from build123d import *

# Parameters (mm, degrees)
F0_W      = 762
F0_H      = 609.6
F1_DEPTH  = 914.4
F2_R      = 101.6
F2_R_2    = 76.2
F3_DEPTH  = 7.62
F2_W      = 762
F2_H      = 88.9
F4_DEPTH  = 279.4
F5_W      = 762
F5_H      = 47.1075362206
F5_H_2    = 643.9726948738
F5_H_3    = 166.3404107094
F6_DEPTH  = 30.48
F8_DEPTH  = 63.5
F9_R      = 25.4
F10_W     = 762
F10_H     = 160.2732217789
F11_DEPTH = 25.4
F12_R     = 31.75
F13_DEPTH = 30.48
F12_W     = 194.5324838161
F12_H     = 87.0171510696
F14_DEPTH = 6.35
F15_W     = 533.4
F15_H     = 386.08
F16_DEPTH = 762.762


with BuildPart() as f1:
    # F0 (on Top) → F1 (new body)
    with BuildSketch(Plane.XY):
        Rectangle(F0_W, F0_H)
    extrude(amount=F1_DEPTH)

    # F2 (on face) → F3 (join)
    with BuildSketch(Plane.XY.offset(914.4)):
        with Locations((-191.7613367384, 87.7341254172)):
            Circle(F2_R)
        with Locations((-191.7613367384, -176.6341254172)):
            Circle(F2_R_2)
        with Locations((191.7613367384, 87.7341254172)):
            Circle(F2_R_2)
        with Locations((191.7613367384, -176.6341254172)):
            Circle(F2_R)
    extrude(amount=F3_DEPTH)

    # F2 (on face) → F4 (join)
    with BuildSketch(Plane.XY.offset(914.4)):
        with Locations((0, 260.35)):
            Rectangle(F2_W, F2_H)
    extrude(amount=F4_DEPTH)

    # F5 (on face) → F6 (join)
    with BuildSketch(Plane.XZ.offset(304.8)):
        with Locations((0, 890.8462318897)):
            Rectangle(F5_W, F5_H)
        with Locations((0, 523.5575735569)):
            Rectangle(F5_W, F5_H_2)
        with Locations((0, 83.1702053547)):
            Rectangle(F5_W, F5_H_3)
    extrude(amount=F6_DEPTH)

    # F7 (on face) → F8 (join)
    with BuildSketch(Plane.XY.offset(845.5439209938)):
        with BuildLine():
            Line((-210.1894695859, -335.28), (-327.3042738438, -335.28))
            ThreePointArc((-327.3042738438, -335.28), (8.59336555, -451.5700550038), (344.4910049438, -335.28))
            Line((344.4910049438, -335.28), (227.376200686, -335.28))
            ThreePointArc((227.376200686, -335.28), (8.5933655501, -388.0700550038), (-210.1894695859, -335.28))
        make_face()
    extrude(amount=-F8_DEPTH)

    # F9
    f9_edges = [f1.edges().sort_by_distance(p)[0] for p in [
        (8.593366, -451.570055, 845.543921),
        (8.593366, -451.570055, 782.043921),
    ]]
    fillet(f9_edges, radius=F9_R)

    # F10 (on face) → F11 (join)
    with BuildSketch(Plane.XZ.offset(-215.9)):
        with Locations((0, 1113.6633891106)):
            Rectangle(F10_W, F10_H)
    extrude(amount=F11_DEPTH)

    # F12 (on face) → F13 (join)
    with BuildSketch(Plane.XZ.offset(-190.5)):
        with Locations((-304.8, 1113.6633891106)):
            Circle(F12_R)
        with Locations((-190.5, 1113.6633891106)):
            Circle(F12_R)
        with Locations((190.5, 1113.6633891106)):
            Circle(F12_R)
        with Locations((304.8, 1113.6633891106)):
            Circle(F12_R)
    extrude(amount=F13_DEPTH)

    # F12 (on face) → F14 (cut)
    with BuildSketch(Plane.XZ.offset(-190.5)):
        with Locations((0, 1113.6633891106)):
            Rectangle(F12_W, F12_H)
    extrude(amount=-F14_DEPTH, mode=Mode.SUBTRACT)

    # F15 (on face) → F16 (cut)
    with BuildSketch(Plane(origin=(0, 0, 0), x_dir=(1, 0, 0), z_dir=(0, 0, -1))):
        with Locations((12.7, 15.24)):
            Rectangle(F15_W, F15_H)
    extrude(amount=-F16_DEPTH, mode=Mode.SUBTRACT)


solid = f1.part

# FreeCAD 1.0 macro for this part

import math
import FreeCAD as App
import Part
import Sketcher

V = App.Vector
Q = App.Units.Quantity


def edges_at(feature, points):
    """Names of the edges that pass closest to the given points."""
    edges = feature.Shape.Edges
    near = lambda p: min(range(len(edges)), key=lambda i: edges[i].distToShape(Part.Vertex(*p))[0])
    return sorted({f"Edge{near(p) + 1}" for p in points})


def add_polygon(sketch, points):
    """Adds a closed chain of lines whose ends are joined by coincident constraints."""
    first, n = sketch.GeometryCount, len(points)
    for a, b in zip(points, points[1:] + points[:1]):
        sketch.addGeometry(Part.LineSegment(App.Vector(*a, 0), App.Vector(*b, 0)), False)
    for i in range(n):
        sketch.addConstraint(Sketcher.Constraint("Coincident", first + i, 2, first + (i + 1) % n, 1))

doc = App.newDocument("Part")
body = doc.addObject("PartDesign::Body", "Body")

# Sketch on XY plane
sketch1 = body.newObject("Sketcher::SketchObject", "Sketch")
sketch1.AttachmentSupport = (doc.getObject("XY_Plane"), [""])
sketch1.MapMode = "FlatFace"
add_polygon(sketch1, [(-381, 305), (-381, -305), (381, -305), (381, 305)])  # lines 0-3
sketch1.addConstraint(Sketcher.Constraint("Vertical", 0))
sketch1.addConstraint(Sketcher.Constraint("Horizontal", 1))
sketch1.addConstraint(Sketcher.Constraint("Vertical", 2))
sketch1.addConstraint(Sketcher.Constraint("Horizontal", 3))
sketch1.addConstraint(Sketcher.Constraint("Symmetric", 0, 2, 2, 2, -1, 1))
sketch1.addConstraint(Sketcher.Constraint("DistanceX", 1, 1, 1, 2, Q("30 in")))
sketch1.addConstraint(Sketcher.Constraint("DistanceY", 0, 2, 0, 1, Q("24 in")))
pad1 = body.newObject("PartDesign::Pad", "Pad")
pad1.Profile = sketch1
pad1.Length = Q("36 in")

# Sketch on XY plane
sketch2 = body.newObject("Sketcher::SketchObject", "Sketch001")
sketch2.AttachmentSupport = (doc.getObject("XY_Plane"), [""])
sketch2.MapMode = "FlatFace"
sketch2.AttachmentOffset = App.Placement(V(0, 0, 36 * 25.4), App.Rotation())
sketch2.addGeometry(Part.Circle(V(-192, 88, 0), V(0, 0, 1), 102), False)
sketch2.addGeometry(Part.Circle(V(-192, -177, 0), V(0, 0, 1), 76), False)
sketch2.addGeometry(Part.Circle(V(192, 88, 0), V(0, 0, 1), 76), False)
sketch2.addGeometry(Part.Circle(V(192, -177, 0), V(0, 0, 1), 102), False)
sketch2.addConstraint(Sketcher.Constraint("Equal", 1, 2))
sketch2.addConstraint(Sketcher.Constraint("Equal", 0, 3))
sketch2.addConstraint(Sketcher.Constraint("Symmetric", 0, 3, 2, 3, -2))
sketch2.addConstraint(Sketcher.Constraint("Symmetric", 1, 3, 3, 3, -2))
sketch2.addConstraint(Sketcher.Constraint("Vertical", 0, 3, 1, 3))
sketch2.addConstraint(Sketcher.Constraint("Diameter", 0, Q("8 in")))
sketch2.addConstraint(Sketcher.Constraint("Diameter", 1, Q("6 in")))
sketch2.addConstraint(Sketcher.Constraint("DistanceY", 1, 3, 0, 3, 264.368251))
sketch2.addConstraint(Sketcher.Constraint("DistanceX", 0, 3, -1, 1, 191.761337))
sketch2.addConstraint(Sketcher.Constraint("DistanceY", -1, 1, 0, 3, 87.734125))
pad2 = body.newObject("PartDesign::Pad", "Pad001")
pad2.Profile = sketch2
pad2.Length = Q("0.3 in")

# Sketch on XY plane
sketch3 = body.newObject("Sketcher::SketchObject", "Sketch002")
sketch3.AttachmentSupport = (doc.getObject("XY_Plane"), [""])
sketch3.MapMode = "FlatFace"
sketch3.AttachmentOffset = App.Placement(V(0, 0, 36 * 25.4), App.Rotation())
add_polygon(sketch3, [(-381, 305), (-381, 216), (381, 216), (381, 305)])  # lines 0-3
sketch3.addConstraint(Sketcher.Constraint("Vertical", 0))
sketch3.addConstraint(Sketcher.Constraint("Horizontal", 1))
sketch3.addConstraint(Sketcher.Constraint("Vertical", 2))
sketch3.addConstraint(Sketcher.Constraint("Horizontal", 3))
sketch3.addConstraint(Sketcher.Constraint("DistanceX", 1, 1, 1, 2, Q("30 in")))
sketch3.addConstraint(Sketcher.Constraint("DistanceY", 0, 2, 0, 1, Q("3.5 in")))
sketch3.addConstraint(Sketcher.Constraint("DistanceX", 0, 2, -1, 1, Q("15 in")))
sketch3.addConstraint(Sketcher.Constraint("DistanceY", -1, 1, 2, 2, Q("12 in")))
pad3 = body.newObject("PartDesign::Pad", "Pad002")
pad3.Profile = sketch3
pad3.Length = Q("11 in")

# Sketch on XZ plane
sketch4 = body.newObject("Sketcher::SketchObject", "Sketch003")
sketch4.AttachmentSupport = (doc.getObject("XZ_Plane"), [""])
sketch4.MapMode = "FlatFace"
sketch4.AttachmentOffset = App.Placement(V(0, 0, 12 * 25.4), App.Rotation())
add_polygon(sketch4, [(-381, 914), (-381, 867), (381, 867), (381, 914)])  # lines 0-3
add_polygon(sketch4, [(-381, 846), (-381, 202), (381, 202), (381, 846)])  # lines 4-7
add_polygon(sketch4, [(-381, 166), (-381, 0), (381, 0), (381, 166)])  # lines 8-11
sketch4.addConstraint(Sketcher.Constraint("Vertical", 0))
sketch4.addConstraint(Sketcher.Constraint("Horizontal", 1))
sketch4.addConstraint(Sketcher.Constraint("Vertical", 2))
sketch4.addConstraint(Sketcher.Constraint("Horizontal", 3))
sketch4.addConstraint(Sketcher.Constraint("Vertical", 4))
sketch4.addConstraint(Sketcher.Constraint("Horizontal", 5))
sketch4.addConstraint(Sketcher.Constraint("Vertical", 6))
sketch4.addConstraint(Sketcher.Constraint("Horizontal", 7))
sketch4.addConstraint(Sketcher.Constraint("Vertical", 8))
sketch4.addConstraint(Sketcher.Constraint("Horizontal", 9))
sketch4.addConstraint(Sketcher.Constraint("Vertical", 10))
sketch4.addConstraint(Sketcher.Constraint("Horizontal", 11))
sketch4.addConstraint(Sketcher.Constraint("Symmetric", 8, 2, 9, 2, -1, 1))
sketch4.addConstraint(Sketcher.Constraint("Vertical", 3, 2, 4, 2))
sketch4.addConstraint(Sketcher.Constraint("Vertical", 2, 2, 5, 2))
sketch4.addConstraint(Sketcher.Constraint("Vertical", 7, 2, 8, 2))
sketch4.addConstraint(Sketcher.Constraint("Vertical", 6, 2, 9, 2))
sketch4.addConstraint(Sketcher.Constraint("DistanceX", 1, 1, 1, 2, Q("30 in")))
sketch4.addConstraint(Sketcher.Constraint("DistanceY", -1, 1, 2, 2, Q("36 in")))
sketch4.addConstraint(Sketcher.Constraint("DistanceY", 8, 2, 8, 1, 166.340411))
sketch4.addConstraint(Sketcher.Constraint("DistanceY", 0, 2, 0, 1, 47.107536))
sketch4.addConstraint(Sketcher.Constraint("DistanceY", 4, 2, 4, 1, 643.972695))
sketch4.addConstraint(Sketcher.Constraint("DistanceY", -1, 1, 6, 2, 845.543921))
pad4 = body.newObject("PartDesign::Pad", "Pad003")
pad4.Profile = sketch4
pad4.Length = Q("1.2 in")

# Sketch on XY plane
sketch5 = body.newObject("Sketcher::SketchObject", "Sketch004")
sketch5.AttachmentSupport = (doc.getObject("XY_Plane"), [""])
sketch5.MapMode = "FlatFace"
sketch5.AttachmentOffset = App.Placement(V(0, 0, 845.543921), App.Rotation())
sketch5.addGeometry(Part.LineSegment(V(-210, -335, 0), V(-327, -335, 0)), False)
sketch5.addGeometry(Part.ArcOfCircle(Part.Circle(V(9, 92, 0), V(0, 0, 1), 543), math.radians(-128), math.radians(-52)), False)
sketch5.addGeometry(Part.LineSegment(V(344, -335, 0), V(227, -335, 0)), False)
sketch5.addGeometry(Part.ArcOfCircle(Part.Circle(V(9, 92, 0), V(0, 0, 1), 480), math.radians(-117), math.radians(-63)), False)
sketch5.addConstraint(Sketcher.Constraint("Coincident", 0, 2, 1, 1))
sketch5.addConstraint(Sketcher.Constraint("Coincident", 1, 2, 2, 1))
sketch5.addConstraint(Sketcher.Constraint("Coincident", 2, 2, 3, 2))
sketch5.addConstraint(Sketcher.Constraint("Coincident", 3, 1, 0, 1))
sketch5.addConstraint(Sketcher.Constraint("Horizontal", 0))
sketch5.addConstraint(Sketcher.Constraint("Horizontal", 2))
sketch5.addConstraint(Sketcher.Constraint("Coincident", 3, 3, 1, 3))
sketch5.addConstraint(Sketcher.Constraint("Horizontal", 0, 2, 1, 2))
sketch5.addConstraint(Sketcher.Constraint("DistanceY", 0, 2, -1, 1, Q("13.2 in")))
sketch5.addConstraint(Sketcher.Constraint("Radius", 1, 543.256261))
sketch5.addConstraint(Sketcher.Constraint("Radius", 3, 479.756261))
sketch5.addConstraint(Sketcher.Constraint("DistanceX", -1, 1, 2, 2, 227.376201))
sketch5.addConstraint(Sketcher.Constraint("DistanceX", 0, 2, 0, 1, 117.114804))
pad5 = body.newObject("PartDesign::Pad", "Pad004")
pad5.Profile = sketch5
pad5.Length = Q("2.5 in")
pad5.Reversed = True
doc.recompute()

fillet = body.newObject("PartDesign::Fillet", "Fillet")
fillet.Base = (pad5, edges_at(pad5, [(8.593, -451.57, 845.544), (8.593, -451.57, 782.044)]))
fillet.Radius = Q("1 in")

# Sketch on XZ plane
sketch6 = body.newObject("Sketcher::SketchObject", "Sketch005")
sketch6.AttachmentSupport = (doc.getObject("XZ_Plane"), [""])
sketch6.MapMode = "FlatFace"
sketch6.AttachmentOffset = App.Placement(V(0, 0, -8.5 * 25.4), App.Rotation())
add_polygon(sketch6, [(-381, 1194), (-381, 1034), (381, 1034), (381, 1194)])  # lines 0-3
sketch6.addConstraint(Sketcher.Constraint("Vertical", 0))
sketch6.addConstraint(Sketcher.Constraint("Horizontal", 1))
sketch6.addConstraint(Sketcher.Constraint("Vertical", 2))
sketch6.addConstraint(Sketcher.Constraint("Horizontal", 3))
sketch6.addConstraint(Sketcher.Constraint("DistanceX", 1, 1, 1, 2, Q("30 in")))
sketch6.addConstraint(Sketcher.Constraint("DistanceX", 0, 2, -1, 1, Q("15 in")))
sketch6.addConstraint(Sketcher.Constraint("DistanceY", -1, 1, 2, 2, Q("47 in")))
sketch6.addConstraint(Sketcher.Constraint("DistanceY", 0, 2, 0, 1, 160.273222))
pad6 = body.newObject("PartDesign::Pad", "Pad005")
pad6.Profile = sketch6
pad6.Length = Q("1 in")

# Sketch on XZ plane
sketch7 = body.newObject("Sketcher::SketchObject", "Sketch006")
sketch7.AttachmentSupport = (doc.getObject("XZ_Plane"), [""])
sketch7.MapMode = "FlatFace"
sketch7.AttachmentOffset = App.Placement(V(0, 0, -7.5 * 25.4), App.Rotation())
sketch7.addGeometry(Part.Circle(V(-305, 1114, 0), V(0, 0, 1), 32), False)
sketch7.addGeometry(Part.Circle(V(-190, 1114, 0), V(0, 0, 1), 32), False)
sketch7.addGeometry(Part.Circle(V(190, 1114, 0), V(0, 0, 1), 32), False)
sketch7.addGeometry(Part.Circle(V(305, 1114, 0), V(0, 0, 1), 32), False)
sketch7.addConstraint(Sketcher.Constraint("Equal", 0, 1))
sketch7.addConstraint(Sketcher.Constraint("Equal", 1, 2))
sketch7.addConstraint(Sketcher.Constraint("Equal", 2, 3))
sketch7.addConstraint(Sketcher.Constraint("Symmetric", 1, 3, 2, 3, -2))
sketch7.addConstraint(Sketcher.Constraint("Symmetric", 0, 3, 3, 3, -2))
sketch7.addConstraint(Sketcher.Constraint("Horizontal", 0, 3, 1, 3))
sketch7.addConstraint(Sketcher.Constraint("Diameter", 0, Q("2.5 in")))
sketch7.addConstraint(Sketcher.Constraint("DistanceX", 0, 3, -1, 1, Q("12 in")))
sketch7.addConstraint(Sketcher.Constraint("DistanceX", 1, 3, 2, 3, Q("15 in")))
sketch7.addConstraint(Sketcher.Constraint("DistanceY", -1, 1, 0, 3, 1113.663389))
pad7 = body.newObject("PartDesign::Pad", "Pad006")
pad7.Profile = sketch7
pad7.Length = Q("1.2 in")

# Sketch on XZ plane
sketch8 = body.newObject("Sketcher::SketchObject", "Sketch007")
sketch8.AttachmentSupport = (doc.getObject("XZ_Plane"), [""])
sketch8.MapMode = "FlatFace"
sketch8.AttachmentOffset = App.Placement(V(0, 0, -7.5 * 25.4), App.Rotation())
add_polygon(sketch8, [(-97, 1157), (-97, 1070), (97, 1070), (97, 1157)])  # lines 0-3
sketch8.addConstraint(Sketcher.Constraint("Vertical", 0))
sketch8.addConstraint(Sketcher.Constraint("Horizontal", 1))
sketch8.addConstraint(Sketcher.Constraint("Vertical", 2))
sketch8.addConstraint(Sketcher.Constraint("Horizontal", 3))
sketch8.addConstraint(Sketcher.Constraint("DistanceY", 0, 2, 0, 1, 87.017151))
sketch8.addConstraint(Sketcher.Constraint("DistanceX", 1, 1, 1, 2, 194.532484))
sketch8.addConstraint(Sketcher.Constraint("DistanceX", 0, 2, -1, 1, 97.266242))
sketch8.addConstraint(Sketcher.Constraint("DistanceY", -1, 1, 0, 2, 1070.154814))
pocket1 = body.newObject("PartDesign::Pocket", "Pocket")
pocket1.Profile = sketch8
pocket1.Length = Q("0.25 in")

# Sketch on XY plane
sketch9 = body.newObject("Sketcher::SketchObject", "Sketch008")
sketch9.AttachmentSupport = (doc.getObject("XY_Plane"), [""])
sketch9.MapMode = "FlatFace"
add_polygon(sketch9, [(-254, -208), (-254, 178), (279, 178), (279, -208)])  # lines 0-3
sketch9.addConstraint(Sketcher.Constraint("Vertical", 0))
sketch9.addConstraint(Sketcher.Constraint("Horizontal", 1))
sketch9.addConstraint(Sketcher.Constraint("Vertical", 2))
sketch9.addConstraint(Sketcher.Constraint("Horizontal", 3))
sketch9.addConstraint(Sketcher.Constraint("DistanceX", 1, 1, 1, 2, Q("21 in")))
sketch9.addConstraint(Sketcher.Constraint("DistanceY", 0, 1, 0, 2, Q("15.2 in")))
sketch9.addConstraint(Sketcher.Constraint("DistanceX", 0, 2, -1, 1, Q("10 in")))
sketch9.addConstraint(Sketcher.Constraint("DistanceY", -1, 1, 0, 2, Q("7 in")))
pocket2 = body.newObject("PartDesign::Pocket", "Pocket001")
pocket2.Profile = sketch9
pocket2.Length = Q("30.03 in")
pocket2.Reversed = True

doc.recompute()
